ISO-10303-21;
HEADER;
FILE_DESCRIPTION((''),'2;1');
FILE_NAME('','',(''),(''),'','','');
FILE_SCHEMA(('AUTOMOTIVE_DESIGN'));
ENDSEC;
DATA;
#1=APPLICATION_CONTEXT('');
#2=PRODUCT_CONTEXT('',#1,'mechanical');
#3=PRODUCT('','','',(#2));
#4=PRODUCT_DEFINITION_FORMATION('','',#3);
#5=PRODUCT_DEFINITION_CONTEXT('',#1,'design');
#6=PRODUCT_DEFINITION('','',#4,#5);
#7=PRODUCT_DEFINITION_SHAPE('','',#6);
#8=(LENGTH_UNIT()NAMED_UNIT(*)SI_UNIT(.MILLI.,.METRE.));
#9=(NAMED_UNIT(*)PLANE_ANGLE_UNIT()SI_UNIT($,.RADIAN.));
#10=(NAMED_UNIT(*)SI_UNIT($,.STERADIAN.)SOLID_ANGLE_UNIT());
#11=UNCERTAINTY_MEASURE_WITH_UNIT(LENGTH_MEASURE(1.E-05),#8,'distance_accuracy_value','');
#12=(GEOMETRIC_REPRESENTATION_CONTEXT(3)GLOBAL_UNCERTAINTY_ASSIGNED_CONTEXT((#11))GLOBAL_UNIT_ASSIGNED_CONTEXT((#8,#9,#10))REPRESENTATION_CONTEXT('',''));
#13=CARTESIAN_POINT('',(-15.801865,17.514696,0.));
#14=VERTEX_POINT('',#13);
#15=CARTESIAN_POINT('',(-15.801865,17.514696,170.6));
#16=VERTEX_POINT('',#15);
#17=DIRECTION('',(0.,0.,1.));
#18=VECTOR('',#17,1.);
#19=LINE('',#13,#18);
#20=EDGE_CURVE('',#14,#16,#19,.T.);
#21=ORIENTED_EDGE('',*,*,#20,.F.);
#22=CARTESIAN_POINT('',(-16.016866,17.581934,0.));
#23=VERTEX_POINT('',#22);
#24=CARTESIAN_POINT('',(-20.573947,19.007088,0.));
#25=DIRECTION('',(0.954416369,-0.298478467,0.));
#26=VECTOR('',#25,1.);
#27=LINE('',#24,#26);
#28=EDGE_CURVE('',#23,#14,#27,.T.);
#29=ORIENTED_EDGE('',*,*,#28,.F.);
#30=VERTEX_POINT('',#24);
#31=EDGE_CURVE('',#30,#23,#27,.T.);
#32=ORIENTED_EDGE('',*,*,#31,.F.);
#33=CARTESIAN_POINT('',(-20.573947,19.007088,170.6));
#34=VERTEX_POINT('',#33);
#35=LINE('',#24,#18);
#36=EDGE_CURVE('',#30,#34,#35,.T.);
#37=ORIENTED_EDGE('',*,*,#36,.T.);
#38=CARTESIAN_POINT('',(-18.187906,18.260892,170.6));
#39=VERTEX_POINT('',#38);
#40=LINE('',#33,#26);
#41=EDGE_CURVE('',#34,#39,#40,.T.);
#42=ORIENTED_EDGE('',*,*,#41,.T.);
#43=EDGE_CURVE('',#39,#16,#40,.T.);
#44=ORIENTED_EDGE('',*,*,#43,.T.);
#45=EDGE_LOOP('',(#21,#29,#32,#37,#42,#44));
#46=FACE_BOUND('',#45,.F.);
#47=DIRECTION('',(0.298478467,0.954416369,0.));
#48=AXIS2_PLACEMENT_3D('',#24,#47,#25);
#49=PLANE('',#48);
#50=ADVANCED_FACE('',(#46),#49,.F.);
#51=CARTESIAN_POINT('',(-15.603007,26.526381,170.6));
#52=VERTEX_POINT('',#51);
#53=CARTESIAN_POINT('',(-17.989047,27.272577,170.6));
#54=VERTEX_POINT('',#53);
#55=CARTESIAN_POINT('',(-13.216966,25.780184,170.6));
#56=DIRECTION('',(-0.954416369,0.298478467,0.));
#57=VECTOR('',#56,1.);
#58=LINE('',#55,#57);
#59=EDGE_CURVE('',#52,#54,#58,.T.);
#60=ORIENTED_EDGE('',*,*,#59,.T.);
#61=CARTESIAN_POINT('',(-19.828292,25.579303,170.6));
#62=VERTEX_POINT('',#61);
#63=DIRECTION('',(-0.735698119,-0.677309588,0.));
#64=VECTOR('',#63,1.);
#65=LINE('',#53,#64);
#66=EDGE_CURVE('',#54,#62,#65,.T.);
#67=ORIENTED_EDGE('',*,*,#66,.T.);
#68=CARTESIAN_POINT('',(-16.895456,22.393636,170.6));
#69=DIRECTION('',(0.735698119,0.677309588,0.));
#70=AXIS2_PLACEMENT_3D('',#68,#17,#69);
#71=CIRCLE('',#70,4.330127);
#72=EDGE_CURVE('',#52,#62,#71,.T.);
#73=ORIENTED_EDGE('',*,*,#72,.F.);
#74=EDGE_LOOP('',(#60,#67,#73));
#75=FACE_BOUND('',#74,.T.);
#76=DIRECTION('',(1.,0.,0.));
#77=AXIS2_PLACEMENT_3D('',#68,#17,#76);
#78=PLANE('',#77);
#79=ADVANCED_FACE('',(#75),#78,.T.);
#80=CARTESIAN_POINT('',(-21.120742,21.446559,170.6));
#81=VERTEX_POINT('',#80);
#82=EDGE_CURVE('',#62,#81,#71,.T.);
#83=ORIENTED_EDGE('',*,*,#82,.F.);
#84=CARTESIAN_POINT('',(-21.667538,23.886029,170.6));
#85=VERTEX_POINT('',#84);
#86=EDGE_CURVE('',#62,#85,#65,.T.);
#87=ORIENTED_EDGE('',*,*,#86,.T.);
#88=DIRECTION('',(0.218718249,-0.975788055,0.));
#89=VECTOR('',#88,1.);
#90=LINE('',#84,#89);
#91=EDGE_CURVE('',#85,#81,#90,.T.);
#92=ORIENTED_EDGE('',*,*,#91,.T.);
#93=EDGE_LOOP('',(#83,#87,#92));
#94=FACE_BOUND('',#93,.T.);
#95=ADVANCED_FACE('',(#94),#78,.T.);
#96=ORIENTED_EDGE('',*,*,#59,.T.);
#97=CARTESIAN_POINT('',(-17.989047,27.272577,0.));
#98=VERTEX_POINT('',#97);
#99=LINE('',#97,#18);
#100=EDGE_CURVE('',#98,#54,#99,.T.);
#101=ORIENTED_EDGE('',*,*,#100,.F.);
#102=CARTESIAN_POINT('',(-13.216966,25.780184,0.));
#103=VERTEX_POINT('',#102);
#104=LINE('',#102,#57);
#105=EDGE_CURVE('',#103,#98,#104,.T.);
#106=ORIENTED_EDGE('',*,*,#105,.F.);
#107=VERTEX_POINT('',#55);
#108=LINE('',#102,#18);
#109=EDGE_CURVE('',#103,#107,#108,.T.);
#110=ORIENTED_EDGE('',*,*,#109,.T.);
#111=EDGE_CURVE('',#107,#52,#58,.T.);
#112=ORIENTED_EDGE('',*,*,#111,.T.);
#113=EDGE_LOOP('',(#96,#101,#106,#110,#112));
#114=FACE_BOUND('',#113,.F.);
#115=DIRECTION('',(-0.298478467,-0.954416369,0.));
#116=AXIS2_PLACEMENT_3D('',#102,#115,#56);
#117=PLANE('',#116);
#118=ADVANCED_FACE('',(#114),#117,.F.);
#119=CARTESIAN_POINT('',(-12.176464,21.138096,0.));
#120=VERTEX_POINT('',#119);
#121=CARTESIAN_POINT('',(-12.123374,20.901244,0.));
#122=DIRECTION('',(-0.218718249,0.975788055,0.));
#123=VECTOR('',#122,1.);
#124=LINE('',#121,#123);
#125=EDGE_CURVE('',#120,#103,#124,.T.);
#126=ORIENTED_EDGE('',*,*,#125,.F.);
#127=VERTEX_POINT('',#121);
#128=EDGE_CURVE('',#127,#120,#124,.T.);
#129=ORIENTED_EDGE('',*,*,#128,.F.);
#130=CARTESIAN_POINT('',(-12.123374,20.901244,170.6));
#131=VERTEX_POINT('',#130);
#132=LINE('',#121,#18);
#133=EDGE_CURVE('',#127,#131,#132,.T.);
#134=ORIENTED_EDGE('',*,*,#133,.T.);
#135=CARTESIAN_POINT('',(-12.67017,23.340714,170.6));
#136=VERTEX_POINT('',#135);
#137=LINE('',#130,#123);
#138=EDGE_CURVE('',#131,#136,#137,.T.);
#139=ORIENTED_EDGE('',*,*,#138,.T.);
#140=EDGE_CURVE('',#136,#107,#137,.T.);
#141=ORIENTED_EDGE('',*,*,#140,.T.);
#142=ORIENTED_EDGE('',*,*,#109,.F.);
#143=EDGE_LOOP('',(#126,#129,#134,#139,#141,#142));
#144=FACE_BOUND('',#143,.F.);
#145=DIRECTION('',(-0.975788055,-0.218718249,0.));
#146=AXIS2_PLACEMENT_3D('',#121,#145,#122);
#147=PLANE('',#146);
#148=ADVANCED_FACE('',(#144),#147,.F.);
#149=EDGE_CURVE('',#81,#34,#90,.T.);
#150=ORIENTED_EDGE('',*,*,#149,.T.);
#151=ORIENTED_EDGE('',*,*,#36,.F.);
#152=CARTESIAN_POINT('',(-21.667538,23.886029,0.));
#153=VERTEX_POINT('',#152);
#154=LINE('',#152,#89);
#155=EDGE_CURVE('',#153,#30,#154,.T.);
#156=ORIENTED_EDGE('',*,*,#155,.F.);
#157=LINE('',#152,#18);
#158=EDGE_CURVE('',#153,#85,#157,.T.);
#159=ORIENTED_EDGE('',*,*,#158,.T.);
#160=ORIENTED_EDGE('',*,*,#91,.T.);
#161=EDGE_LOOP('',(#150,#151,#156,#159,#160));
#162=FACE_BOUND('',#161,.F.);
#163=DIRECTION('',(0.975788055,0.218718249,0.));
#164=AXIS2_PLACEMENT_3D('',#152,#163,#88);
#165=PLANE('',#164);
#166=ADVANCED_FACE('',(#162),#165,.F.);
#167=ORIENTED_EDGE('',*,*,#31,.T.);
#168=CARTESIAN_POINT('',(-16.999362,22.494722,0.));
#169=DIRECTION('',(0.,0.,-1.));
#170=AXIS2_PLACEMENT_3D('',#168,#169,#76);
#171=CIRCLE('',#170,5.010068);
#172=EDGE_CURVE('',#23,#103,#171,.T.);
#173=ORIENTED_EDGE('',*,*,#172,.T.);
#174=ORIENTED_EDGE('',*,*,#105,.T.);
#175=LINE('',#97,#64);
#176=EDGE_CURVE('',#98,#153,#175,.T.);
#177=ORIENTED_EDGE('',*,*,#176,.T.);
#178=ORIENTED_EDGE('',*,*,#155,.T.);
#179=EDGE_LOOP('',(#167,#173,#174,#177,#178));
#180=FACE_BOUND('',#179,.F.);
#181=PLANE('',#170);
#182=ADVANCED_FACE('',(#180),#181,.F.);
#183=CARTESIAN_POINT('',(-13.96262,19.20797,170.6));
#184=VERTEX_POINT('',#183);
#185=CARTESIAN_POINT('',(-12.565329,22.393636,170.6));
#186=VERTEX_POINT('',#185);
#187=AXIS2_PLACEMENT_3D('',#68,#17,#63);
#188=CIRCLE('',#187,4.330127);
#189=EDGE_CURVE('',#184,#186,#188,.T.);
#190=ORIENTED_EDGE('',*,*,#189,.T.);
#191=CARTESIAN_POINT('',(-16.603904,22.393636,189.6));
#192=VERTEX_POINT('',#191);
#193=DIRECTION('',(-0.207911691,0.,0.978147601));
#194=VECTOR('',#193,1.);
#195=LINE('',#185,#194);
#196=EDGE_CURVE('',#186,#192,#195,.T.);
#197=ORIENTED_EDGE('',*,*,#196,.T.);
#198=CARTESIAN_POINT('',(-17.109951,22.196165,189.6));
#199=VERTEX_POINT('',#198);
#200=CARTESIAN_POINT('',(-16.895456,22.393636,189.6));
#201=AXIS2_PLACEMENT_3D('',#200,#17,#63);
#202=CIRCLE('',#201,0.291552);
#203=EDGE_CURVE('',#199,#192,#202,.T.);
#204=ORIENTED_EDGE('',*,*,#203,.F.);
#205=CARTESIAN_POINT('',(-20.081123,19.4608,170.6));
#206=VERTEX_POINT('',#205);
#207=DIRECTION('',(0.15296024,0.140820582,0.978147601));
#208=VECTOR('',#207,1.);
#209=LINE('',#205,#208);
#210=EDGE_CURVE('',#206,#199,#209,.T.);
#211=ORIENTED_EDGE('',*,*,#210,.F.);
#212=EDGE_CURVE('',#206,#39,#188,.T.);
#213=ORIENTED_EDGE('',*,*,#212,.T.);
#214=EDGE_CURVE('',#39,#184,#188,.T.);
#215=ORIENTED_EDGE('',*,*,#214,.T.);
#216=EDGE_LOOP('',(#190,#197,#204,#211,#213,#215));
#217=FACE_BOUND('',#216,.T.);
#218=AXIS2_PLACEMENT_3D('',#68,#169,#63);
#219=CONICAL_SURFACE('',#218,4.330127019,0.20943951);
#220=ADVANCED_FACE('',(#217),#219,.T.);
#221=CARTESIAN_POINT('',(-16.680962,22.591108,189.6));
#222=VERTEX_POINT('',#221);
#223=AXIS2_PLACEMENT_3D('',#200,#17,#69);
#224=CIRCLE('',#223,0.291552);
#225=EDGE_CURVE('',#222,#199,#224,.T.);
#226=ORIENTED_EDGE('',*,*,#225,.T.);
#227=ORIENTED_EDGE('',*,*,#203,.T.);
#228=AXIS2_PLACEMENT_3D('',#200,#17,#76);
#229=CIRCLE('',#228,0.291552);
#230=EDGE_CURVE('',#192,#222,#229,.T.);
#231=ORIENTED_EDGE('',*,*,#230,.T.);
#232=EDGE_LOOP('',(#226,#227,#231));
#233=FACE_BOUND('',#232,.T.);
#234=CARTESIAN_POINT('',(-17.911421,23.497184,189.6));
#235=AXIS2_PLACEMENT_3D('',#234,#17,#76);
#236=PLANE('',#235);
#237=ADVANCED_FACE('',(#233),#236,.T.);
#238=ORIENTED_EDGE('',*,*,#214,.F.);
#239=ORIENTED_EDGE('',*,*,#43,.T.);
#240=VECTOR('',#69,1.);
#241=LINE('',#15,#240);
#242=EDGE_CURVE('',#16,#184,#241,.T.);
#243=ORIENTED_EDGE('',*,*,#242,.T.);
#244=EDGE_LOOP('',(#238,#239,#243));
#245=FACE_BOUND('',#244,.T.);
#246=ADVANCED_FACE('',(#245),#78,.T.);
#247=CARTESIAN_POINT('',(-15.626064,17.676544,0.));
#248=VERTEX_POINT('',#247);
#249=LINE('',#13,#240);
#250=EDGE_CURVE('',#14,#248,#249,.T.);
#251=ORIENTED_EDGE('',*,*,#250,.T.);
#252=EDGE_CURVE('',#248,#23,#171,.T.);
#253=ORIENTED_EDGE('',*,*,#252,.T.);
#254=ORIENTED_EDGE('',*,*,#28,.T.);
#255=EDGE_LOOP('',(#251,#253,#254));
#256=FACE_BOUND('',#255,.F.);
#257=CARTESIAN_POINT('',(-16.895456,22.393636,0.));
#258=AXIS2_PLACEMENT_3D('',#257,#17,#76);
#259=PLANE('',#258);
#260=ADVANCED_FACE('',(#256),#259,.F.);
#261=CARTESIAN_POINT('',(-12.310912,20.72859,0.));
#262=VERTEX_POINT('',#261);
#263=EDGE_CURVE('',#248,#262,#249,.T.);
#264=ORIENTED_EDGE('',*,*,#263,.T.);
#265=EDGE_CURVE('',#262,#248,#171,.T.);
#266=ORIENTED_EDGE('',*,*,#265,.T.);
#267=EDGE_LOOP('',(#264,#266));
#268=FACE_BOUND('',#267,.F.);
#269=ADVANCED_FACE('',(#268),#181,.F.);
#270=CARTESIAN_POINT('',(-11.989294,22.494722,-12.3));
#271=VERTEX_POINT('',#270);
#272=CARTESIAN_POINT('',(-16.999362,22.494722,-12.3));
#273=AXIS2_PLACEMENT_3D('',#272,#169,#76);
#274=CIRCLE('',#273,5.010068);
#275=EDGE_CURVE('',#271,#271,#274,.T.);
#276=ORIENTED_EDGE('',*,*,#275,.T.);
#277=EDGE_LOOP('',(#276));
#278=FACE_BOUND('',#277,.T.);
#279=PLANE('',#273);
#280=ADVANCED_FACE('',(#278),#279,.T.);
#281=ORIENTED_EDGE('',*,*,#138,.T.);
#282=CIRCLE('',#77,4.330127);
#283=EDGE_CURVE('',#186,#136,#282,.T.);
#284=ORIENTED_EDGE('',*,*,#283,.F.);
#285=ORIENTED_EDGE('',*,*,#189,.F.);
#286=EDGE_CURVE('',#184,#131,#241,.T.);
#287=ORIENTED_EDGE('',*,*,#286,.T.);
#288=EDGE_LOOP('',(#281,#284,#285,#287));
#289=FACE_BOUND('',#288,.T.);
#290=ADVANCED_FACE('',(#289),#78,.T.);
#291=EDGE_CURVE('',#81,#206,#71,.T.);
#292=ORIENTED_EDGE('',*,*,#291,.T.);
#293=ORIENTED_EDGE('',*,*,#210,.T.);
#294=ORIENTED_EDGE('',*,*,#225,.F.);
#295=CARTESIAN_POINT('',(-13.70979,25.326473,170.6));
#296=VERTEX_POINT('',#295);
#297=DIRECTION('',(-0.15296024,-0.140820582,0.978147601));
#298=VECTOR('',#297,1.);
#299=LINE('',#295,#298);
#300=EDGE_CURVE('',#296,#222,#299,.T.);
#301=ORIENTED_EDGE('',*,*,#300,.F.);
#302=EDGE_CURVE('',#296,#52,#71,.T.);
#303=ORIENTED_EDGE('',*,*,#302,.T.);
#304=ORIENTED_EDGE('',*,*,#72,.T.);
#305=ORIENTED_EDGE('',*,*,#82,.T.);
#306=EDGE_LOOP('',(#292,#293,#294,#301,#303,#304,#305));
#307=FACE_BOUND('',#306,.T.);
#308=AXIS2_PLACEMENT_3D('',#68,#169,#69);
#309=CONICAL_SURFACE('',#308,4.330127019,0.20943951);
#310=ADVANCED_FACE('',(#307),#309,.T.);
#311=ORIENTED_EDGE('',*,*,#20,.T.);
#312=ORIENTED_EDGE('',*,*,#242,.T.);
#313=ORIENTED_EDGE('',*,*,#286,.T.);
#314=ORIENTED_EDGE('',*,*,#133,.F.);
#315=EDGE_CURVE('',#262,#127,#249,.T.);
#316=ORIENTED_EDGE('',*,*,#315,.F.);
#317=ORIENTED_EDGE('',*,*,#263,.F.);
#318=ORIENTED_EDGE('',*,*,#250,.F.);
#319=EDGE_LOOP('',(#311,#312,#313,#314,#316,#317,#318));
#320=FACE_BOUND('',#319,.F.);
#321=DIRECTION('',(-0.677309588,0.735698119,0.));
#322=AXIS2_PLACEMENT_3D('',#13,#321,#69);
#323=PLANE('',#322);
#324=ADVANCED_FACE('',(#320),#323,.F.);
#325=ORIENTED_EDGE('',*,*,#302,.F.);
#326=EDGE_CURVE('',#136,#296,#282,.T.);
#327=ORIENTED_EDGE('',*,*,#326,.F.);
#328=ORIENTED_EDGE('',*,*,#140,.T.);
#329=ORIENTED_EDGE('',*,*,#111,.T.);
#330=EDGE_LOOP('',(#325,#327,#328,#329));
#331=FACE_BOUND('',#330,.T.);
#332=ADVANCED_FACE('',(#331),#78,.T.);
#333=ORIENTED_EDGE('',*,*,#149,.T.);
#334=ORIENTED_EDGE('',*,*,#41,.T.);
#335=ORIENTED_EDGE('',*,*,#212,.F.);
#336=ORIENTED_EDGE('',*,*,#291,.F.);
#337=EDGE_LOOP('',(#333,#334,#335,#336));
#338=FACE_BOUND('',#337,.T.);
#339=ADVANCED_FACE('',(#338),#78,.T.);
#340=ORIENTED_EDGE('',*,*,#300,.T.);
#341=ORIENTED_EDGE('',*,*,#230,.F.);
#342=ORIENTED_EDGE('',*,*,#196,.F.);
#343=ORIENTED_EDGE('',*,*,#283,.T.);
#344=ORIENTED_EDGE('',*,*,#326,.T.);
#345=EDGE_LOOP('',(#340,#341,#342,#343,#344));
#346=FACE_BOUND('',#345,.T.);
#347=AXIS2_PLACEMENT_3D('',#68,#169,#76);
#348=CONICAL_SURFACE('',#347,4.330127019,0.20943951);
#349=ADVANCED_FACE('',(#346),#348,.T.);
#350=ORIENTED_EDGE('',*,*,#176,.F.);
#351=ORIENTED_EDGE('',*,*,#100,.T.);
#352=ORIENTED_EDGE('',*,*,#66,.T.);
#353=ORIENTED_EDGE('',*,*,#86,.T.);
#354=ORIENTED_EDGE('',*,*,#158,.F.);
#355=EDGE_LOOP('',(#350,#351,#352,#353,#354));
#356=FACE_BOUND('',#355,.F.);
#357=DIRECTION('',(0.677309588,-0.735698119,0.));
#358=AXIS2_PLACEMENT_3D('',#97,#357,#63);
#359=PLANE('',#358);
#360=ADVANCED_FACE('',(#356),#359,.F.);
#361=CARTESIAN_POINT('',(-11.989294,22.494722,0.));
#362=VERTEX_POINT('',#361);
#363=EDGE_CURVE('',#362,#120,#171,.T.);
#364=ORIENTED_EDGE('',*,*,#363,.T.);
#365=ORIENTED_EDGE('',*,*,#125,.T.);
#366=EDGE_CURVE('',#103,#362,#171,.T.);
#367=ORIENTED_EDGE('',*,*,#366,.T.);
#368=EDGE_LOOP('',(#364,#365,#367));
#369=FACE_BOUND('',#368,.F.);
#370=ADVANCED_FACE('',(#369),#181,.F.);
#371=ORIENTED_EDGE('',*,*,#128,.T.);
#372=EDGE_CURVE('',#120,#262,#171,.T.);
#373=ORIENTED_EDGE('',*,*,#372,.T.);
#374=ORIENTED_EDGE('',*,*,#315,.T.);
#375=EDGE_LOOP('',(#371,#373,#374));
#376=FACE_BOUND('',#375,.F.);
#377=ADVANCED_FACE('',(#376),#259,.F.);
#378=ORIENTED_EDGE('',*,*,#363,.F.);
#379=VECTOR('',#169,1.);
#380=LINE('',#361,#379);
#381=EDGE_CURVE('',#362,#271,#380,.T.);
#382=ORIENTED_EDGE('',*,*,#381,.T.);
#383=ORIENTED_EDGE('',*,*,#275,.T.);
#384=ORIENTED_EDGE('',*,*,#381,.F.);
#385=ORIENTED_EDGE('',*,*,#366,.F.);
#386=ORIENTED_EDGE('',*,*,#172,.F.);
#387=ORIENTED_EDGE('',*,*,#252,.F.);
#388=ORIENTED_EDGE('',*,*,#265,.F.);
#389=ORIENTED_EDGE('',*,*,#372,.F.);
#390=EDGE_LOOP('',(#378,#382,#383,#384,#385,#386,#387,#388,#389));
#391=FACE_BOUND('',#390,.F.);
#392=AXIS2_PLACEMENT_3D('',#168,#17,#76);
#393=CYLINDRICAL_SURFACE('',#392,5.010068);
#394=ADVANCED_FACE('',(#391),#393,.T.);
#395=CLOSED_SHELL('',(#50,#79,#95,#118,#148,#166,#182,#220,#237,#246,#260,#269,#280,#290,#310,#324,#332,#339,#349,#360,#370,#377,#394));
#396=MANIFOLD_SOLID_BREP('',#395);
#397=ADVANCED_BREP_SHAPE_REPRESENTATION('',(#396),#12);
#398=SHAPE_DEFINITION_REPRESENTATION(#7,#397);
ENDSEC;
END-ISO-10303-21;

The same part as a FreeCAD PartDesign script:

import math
import FreeCAD as App
import Part
import Sketcher

V = App.Vector

doc = App.newDocument("Part")
body = doc.addObject("PartDesign::Body", "Body")

sketch1 = body.newObject("Sketcher::SketchObject", "Sketch")
sketch1.AttachmentSupport = (doc.getObject("XY_Plane"), [""])
sketch1.MapMode = "FlatFace"
sketch1.addGeometry(Part.LineSegment(V(-15.8, 17.5, 0), V(-12.1, 20.9, 0)), False)
sketch1.addGeometry(Part.LineSegment(V(-12.1, 20.9, 0), V(-13.2, 25.8, 0)), False)
sketch1.addGeometry(Part.LineSegment(V(-13.2, 25.8, 0), V(-18, 27.3, 0)), False)
sketch1.addGeometry(Part.LineSegment(V(-18, 27.3, 0), V(-21.7, 23.9, 0)), False)
sketch1.addGeometry(Part.LineSegment(V(-21.7, 23.9, 0), V(-20.6, 19, 0)), False)
sketch1.addGeometry(Part.LineSegment(V(-20.6, 19, 0), V(-15.8, 17.5, 0)), False)
sketch1.addConstraint(Sketcher.Constraint("Coincident", 0, 2, 1, 1))
sketch1.addConstraint(Sketcher.Constraint("Coincident", 1, 2, 2, 1))
sketch1.addConstraint(Sketcher.Constraint("Coincident", 2, 2, 3, 1))
sketch1.addConstraint(Sketcher.Constraint("Coincident", 3, 2, 4, 1))
sketch1.addConstraint(Sketcher.Constraint("Coincident", 4, 2, 5, 1))
sketch1.addConstraint(Sketcher.Constraint("Coincident", 5, 2, 0, 1))
sketch1.addConstraint(Sketcher.Constraint("Parallel", 0, 3))
sketch1.addConstraint(Sketcher.Constraint("Parallel", 1, 4))
sketch1.addConstraint(Sketcher.Constraint("Parallel", 2, 5))
sketch1.addConstraint(Sketcher.Constraint("Equal", 0, 1))
sketch1.addConstraint(Sketcher.Constraint("Equal", 1, 2))
sketch1.addConstraint(Sketcher.Constraint("Equal", 2, 3))
sketch1.addConstraint(Sketcher.Constraint("Distance", 0, 5.0))
sketch1.addConstraint(Sketcher.Constraint("DistanceX", 4, 2, 2, 2, 2.584899))
sketch1.addConstraint(Sketcher.Constraint("DistanceX", 3, 2, -1, 1, 21.667538))
sketch1.addConstraint(Sketcher.Constraint("DistanceY", -1, 1, 3, 2, 23.886029))
sketch1.addConstraint(Sketcher.Constraint("DistanceY", -1, 1, 4, 2, 19.007088))
sketch1.addConstraint(Sketcher.Constraint("DistanceX", 2, 2, 1, 2, 4.772082))
pad1 = body.newObject("PartDesign::Pad", "Pad")
pad1.Profile = sketch1
pad1.Length = 170.6

sketch2 = body.newObject("Sketcher::SketchObject", "Sketch001")
sketch2.AttachmentSupport = (doc.getObject("XY_Plane"), [""])
sketch2.MapMode = "FlatFace"
sketch2.addGeometry(Part.Circle(V(-17, 22, 0), V(0, 0, 1), 5), False)
sketch2.addConstraint(Sketcher.Constraint("Diameter", 0, 10.020137))
sketch2.addConstraint(Sketcher.Constraint("DistanceX", 0, 3, -1, 1, 16.999362))
sketch2.addConstraint(Sketcher.Constraint("DistanceY", -1, 1, 0, 3, 22.494722))
pad2 = body.newObject("PartDesign::Pad", "Pad001")
pad2.Profile = sketch2
pad2.Length = 12.3
pad2.Reversed = True

sketch3 = body.newObject("Sketcher::SketchObject", "Sketch002")
sketch3.AttachmentSupport = (doc.getObject("XY_Plane"), [""])
sketch3.MapMode = "FlatFace"
sketch3.AttachmentOffset = App.Placement(V(0, 0, 170.6), App.Rotation())
sketch3.addGeometry(Part.ArcOfCircle(Part.Circle(V(-16.9, 22.4, 0), V(0, 0, 1), 4.3), math.radians(43), math.radians(223)), False)
sketch3.addGeometry(Part.ArcOfCircle(Part.Circle(V(-16.9, 22.4, 0), V(0, 0, 1), 4.3), math.radians(-137), math.radians(0)), False)
sketch3.addGeometry(Part.ArcOfCircle(Part.Circle(V(-16.9, 22.4, 0), V(0, 0, 1), 4.3), math.radians(0), math.radians(43)), False)
sketch3.addConstraint(Sketcher.Constraint("Tangent", 0, 2, 1, 1))
sketch3.addConstraint(Sketcher.Constraint("Tangent", 1, 2, 2, 1))
sketch3.addConstraint(Sketcher.Constraint("Tangent", 2, 2, 0, 1))
sketch3.addConstraint(Sketcher.Constraint("Horizontal", 2, 3, 1, 2))
sketch3.addConstraint(Sketcher.Constraint("Radius", 0, 4.330127))
sketch3.addConstraint(Sketcher.Constraint("DistanceY", -1, 1, 0, 2, 19.4608))
sketch3.addConstraint(Sketcher.Constraint("DistanceX", 1, 2, -1, 1, 12.565329))
sketch3.addConstraint(Sketcher.Constraint("DistanceX", 2, 2, -1, 1, 13.70979))
sketch3.addConstraint(Sketcher.Constraint("DistanceY", -1, 1, 0, 3, 22.393636))
pad3 = body.newObject("PartDesign::Pad", "Pad002")
pad3.Profile = sketch3
pad3.Length = 19
pad3.TaperAngle = -12

doc.recompute()
